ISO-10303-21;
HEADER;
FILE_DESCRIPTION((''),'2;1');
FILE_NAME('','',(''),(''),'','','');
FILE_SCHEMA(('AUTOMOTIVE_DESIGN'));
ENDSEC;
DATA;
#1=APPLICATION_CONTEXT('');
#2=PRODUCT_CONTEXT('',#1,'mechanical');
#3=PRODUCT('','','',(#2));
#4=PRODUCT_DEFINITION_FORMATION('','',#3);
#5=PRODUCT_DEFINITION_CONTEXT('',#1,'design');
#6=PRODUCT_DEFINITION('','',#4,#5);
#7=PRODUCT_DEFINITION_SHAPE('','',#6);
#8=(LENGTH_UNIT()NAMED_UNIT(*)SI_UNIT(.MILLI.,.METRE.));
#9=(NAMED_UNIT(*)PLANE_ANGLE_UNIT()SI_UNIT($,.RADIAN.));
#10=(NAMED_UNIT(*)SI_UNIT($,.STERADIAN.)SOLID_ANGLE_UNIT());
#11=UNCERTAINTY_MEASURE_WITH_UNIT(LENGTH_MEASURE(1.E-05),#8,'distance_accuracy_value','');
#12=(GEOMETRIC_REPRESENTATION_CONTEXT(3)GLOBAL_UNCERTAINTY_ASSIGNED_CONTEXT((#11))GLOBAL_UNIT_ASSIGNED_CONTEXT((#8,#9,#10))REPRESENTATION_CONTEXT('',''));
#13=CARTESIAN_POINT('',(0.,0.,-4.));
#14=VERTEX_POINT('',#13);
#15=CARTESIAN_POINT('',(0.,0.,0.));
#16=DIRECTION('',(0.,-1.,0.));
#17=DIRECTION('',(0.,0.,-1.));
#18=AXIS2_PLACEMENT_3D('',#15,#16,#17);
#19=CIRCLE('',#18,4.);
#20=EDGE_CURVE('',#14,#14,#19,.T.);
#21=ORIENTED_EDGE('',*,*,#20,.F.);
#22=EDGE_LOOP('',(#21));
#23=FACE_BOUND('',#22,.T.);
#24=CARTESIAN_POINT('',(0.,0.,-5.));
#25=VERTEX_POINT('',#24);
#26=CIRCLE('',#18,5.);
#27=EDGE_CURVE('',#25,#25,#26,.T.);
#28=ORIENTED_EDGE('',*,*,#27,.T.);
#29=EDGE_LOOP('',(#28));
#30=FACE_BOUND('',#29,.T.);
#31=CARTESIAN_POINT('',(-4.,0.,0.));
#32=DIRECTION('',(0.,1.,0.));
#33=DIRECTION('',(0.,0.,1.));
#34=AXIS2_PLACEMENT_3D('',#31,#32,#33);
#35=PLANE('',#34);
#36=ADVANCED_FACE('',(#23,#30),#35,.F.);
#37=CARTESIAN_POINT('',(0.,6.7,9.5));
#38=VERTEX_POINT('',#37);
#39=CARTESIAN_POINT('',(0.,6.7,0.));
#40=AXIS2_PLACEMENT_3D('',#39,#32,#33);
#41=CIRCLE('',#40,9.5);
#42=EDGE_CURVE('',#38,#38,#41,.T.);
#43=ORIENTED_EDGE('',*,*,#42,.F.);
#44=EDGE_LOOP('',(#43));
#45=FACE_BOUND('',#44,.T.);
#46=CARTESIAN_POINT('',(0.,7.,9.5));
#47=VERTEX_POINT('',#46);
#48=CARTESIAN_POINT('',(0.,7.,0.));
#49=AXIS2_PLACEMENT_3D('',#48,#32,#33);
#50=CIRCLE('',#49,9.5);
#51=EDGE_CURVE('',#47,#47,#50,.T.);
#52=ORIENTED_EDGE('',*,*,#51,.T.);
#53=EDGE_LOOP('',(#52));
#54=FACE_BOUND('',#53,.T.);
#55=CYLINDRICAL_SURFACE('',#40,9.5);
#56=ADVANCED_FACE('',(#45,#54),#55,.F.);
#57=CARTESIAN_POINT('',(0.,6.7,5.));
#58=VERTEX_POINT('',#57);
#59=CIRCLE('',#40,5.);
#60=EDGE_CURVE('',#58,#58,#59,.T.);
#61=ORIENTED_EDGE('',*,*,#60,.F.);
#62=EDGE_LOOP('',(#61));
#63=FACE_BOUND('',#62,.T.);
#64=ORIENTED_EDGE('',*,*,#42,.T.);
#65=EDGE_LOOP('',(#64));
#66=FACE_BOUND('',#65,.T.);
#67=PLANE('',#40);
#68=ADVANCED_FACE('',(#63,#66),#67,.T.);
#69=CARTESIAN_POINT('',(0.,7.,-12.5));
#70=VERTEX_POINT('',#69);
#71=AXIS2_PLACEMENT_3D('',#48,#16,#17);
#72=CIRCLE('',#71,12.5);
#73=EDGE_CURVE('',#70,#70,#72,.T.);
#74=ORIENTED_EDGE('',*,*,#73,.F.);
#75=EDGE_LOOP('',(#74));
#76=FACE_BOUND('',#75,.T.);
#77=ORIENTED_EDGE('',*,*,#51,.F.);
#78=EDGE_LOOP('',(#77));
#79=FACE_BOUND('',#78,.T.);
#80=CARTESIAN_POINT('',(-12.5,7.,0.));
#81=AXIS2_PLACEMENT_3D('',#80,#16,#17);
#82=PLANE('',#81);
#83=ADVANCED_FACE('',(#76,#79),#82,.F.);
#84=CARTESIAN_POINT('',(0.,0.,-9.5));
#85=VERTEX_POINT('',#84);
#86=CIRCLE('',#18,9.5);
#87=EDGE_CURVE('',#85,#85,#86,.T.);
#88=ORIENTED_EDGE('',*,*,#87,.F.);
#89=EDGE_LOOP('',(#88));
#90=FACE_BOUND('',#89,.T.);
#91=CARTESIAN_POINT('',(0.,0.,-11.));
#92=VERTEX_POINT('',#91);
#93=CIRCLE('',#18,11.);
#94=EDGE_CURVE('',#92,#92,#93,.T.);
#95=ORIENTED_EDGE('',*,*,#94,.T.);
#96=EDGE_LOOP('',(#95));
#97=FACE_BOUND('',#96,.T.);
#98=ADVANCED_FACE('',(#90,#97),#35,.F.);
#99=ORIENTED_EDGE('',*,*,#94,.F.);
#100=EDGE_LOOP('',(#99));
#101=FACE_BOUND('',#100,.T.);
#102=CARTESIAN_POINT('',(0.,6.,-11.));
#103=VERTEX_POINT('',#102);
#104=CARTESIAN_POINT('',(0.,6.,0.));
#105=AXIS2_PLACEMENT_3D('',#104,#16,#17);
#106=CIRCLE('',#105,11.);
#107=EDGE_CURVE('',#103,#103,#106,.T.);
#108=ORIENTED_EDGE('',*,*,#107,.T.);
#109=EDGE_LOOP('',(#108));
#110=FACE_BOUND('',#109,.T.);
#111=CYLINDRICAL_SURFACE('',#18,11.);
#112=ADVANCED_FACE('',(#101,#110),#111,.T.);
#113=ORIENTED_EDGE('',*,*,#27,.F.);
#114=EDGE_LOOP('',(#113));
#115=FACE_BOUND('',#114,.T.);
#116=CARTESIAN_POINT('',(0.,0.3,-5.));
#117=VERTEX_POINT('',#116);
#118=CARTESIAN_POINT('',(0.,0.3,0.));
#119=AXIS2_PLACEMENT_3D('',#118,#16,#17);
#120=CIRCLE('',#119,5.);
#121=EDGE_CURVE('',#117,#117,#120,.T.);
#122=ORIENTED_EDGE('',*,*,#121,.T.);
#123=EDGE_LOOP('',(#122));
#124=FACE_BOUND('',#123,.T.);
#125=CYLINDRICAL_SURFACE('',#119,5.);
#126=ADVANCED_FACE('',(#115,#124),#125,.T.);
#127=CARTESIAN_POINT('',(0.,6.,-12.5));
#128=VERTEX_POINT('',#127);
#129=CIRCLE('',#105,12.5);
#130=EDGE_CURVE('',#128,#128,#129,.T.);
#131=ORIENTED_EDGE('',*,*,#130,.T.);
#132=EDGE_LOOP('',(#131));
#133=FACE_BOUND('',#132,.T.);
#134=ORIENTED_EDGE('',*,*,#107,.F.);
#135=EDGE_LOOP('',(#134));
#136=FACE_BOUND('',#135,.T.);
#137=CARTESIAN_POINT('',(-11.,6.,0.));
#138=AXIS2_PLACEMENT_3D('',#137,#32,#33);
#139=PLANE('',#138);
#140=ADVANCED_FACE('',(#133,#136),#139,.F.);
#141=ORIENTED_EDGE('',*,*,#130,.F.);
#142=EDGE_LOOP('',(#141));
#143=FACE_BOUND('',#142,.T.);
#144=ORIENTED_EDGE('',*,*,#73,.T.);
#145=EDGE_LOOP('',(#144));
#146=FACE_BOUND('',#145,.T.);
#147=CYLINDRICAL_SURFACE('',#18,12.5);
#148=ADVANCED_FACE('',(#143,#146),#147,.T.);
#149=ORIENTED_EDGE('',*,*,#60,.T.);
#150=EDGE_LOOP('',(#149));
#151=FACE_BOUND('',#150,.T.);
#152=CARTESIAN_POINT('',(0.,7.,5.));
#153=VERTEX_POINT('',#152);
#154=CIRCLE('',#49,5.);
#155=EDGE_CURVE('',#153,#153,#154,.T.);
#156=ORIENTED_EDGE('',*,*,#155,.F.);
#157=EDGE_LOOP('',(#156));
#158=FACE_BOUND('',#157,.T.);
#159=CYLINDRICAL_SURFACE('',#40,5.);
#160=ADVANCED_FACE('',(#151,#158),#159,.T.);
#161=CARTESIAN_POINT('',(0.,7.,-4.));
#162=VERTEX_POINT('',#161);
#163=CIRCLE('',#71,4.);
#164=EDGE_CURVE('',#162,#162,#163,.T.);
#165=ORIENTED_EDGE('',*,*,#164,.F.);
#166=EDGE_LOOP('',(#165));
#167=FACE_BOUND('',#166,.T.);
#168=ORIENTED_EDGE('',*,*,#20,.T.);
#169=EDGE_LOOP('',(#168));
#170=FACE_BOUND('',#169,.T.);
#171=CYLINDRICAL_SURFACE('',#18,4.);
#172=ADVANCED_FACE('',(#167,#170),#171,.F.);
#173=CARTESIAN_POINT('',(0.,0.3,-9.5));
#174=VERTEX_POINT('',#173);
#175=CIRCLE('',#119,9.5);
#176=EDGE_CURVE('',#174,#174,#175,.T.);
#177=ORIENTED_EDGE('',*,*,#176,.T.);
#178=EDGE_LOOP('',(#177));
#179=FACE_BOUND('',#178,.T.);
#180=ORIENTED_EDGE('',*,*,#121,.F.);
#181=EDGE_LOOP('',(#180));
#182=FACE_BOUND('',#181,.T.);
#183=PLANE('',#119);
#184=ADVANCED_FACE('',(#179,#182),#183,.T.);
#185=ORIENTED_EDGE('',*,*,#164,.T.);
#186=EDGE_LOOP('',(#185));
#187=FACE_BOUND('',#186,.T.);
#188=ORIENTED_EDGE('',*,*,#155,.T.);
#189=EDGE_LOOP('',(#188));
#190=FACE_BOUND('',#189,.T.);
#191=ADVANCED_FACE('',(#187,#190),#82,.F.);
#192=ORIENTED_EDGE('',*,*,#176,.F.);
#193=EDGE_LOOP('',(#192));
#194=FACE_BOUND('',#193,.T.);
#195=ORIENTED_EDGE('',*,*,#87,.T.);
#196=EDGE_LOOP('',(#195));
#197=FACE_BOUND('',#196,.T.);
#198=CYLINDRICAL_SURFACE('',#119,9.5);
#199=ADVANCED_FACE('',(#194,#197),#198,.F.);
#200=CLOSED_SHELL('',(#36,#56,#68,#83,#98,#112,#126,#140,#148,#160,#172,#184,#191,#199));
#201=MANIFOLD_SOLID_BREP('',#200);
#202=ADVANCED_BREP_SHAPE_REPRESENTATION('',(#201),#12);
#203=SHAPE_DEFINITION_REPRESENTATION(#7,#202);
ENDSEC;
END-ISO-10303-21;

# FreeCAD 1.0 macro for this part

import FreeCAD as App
import Part
import Sketcher


def add_polygon(sketch, points):
    """Adds a closed chain of lines whose ends are joined by coincident constraints."""
    first, n = sketch.GeometryCount, len(points)
    for a, b in zip(points, points[1:] + points[:1]):
        sketch.addGeometry(Part.LineSegment(App.Vector(*a, 0), App.Vector(*b, 0)), False)
    for i in range(n):
        sketch.addConstraint(Sketcher.Constraint("Coincident", first + i, 2, first + (i + 1) % n, 1))

doc = App.newDocument("Part")
body = doc.addObject("PartDesign::Body", "Body")

# Sketch on XY plane
sketch1 = body.newObject("Sketcher::SketchObject", "Sketch")
sketch1.AttachmentSupport = (doc.getObject("XY_Plane"), [""])
sketch1.MapMode = "FlatFace"
add_polygon(sketch1, [(-4, 7), (-12.5, 7), (-12.5, 6), (-11, 6), (-11, 0), (-4, 0)])  # lines 0-5
sketch1.addConstraint([
    Sketcher.Constraint("Horizontal", 0),
    Sketcher.Constraint("Vertical", 1),
    Sketcher.Constraint("Horizontal", 2),
    Sketcher.Constraint("Vertical", 3),
    Sketcher.Constraint("Horizontal", 4),
    Sketcher.Constraint("Vertical", 5),
    Sketcher.Constraint("PointOnObject", 3, 2, -1),
    Sketcher.Constraint("Equal", 4, 5),
    Sketcher.Constraint("DistanceX", 4, 1, 4, 2, 7.0),
    Sketcher.Constraint("DistanceY", 1, 2, 1, 1, 1.0),
    Sketcher.Constraint("DistanceX", 0, 2, 0, 1, 8.5),
    Sketcher.Constraint("DistanceX", 2, 2, -1, 1, 11.0),
])
revolution = body.newObject("PartDesign::Revolution", "Revolution")
revolution.Profile = sketch1
revolution.ReferenceAxis = (sketch1, ["V_Axis"])
revolution.Angle = 360

# Sketch on XZ plane
sketch2 = body.newObject("Sketcher::SketchObject", "Sketch001")
sketch2.AttachmentSupport = (doc.getObject("XZ_Plane"), [""])
sketch2.MapMode = "FlatFace"
sketch2.AttachmentOffset = App.Placement(App.Vector(0, 0, -7), App.Rotation())
sketch2.addGeometry([
    Part.Circle(App.Vector(0, 0, 0), App.Vector(0, 0, 1), 10),
    Part.Circle(App.Vector(0, 0, 0), App.Vector(0, 0, 1), 5),
], False)
sketch2.addConstraint([
    Sketcher.Constraint("Coincident", 0, 3, -1, 1),
    Sketcher.Constraint("Coincident", 1, 3, -1, 1),
    Sketcher.Constraint("Diameter", 0, 19.0),
    Sketcher.Constraint("Diameter", 1, 10.0),
])
pocket1 = body.newObject("PartDesign::Pocket", "Pocket")
pocket1.Profile = sketch2
pocket1.Length = 0.3
pocket1.Reversed = True

# Sketch on XZ plane
sketch3 = body.newObject("Sketcher::SketchObject", "Sketch002")
sketch3.AttachmentSupport = (doc.getObject("XZ_Plane"), [""])
sketch3.MapMode = "FlatFace"
sketch3.AttachmentOffset = App.Placement(App.Vector(0, 0, -0.3), App.Rotation())
sketch3.addGeometry([
    Part.Circle(App.Vector(0, 0, 0), App.Vector(0, 0, 1), 10),
    Part.Circle(App.Vector(0, 0, 0), App.Vector(0, 0, 1), 5),
], False)
sketch3.addConstraint([
    Sketcher.Constraint("Coincident", 0, 3, -1, 1),
    Sketcher.Constraint("Coincident", 1, 3, -1, 1),
    Sketcher.Constraint("Diameter", 0, 19.0),
    Sketcher.Constraint("Diameter", 1, 10.0),
])
pocket2 = body.newObject("PartDesign::Pocket", "Pocket001")
pocket2.Profile = sketch3
pocket2.Length = 0.3
pocket2.Reversed = True

doc.recompute()
